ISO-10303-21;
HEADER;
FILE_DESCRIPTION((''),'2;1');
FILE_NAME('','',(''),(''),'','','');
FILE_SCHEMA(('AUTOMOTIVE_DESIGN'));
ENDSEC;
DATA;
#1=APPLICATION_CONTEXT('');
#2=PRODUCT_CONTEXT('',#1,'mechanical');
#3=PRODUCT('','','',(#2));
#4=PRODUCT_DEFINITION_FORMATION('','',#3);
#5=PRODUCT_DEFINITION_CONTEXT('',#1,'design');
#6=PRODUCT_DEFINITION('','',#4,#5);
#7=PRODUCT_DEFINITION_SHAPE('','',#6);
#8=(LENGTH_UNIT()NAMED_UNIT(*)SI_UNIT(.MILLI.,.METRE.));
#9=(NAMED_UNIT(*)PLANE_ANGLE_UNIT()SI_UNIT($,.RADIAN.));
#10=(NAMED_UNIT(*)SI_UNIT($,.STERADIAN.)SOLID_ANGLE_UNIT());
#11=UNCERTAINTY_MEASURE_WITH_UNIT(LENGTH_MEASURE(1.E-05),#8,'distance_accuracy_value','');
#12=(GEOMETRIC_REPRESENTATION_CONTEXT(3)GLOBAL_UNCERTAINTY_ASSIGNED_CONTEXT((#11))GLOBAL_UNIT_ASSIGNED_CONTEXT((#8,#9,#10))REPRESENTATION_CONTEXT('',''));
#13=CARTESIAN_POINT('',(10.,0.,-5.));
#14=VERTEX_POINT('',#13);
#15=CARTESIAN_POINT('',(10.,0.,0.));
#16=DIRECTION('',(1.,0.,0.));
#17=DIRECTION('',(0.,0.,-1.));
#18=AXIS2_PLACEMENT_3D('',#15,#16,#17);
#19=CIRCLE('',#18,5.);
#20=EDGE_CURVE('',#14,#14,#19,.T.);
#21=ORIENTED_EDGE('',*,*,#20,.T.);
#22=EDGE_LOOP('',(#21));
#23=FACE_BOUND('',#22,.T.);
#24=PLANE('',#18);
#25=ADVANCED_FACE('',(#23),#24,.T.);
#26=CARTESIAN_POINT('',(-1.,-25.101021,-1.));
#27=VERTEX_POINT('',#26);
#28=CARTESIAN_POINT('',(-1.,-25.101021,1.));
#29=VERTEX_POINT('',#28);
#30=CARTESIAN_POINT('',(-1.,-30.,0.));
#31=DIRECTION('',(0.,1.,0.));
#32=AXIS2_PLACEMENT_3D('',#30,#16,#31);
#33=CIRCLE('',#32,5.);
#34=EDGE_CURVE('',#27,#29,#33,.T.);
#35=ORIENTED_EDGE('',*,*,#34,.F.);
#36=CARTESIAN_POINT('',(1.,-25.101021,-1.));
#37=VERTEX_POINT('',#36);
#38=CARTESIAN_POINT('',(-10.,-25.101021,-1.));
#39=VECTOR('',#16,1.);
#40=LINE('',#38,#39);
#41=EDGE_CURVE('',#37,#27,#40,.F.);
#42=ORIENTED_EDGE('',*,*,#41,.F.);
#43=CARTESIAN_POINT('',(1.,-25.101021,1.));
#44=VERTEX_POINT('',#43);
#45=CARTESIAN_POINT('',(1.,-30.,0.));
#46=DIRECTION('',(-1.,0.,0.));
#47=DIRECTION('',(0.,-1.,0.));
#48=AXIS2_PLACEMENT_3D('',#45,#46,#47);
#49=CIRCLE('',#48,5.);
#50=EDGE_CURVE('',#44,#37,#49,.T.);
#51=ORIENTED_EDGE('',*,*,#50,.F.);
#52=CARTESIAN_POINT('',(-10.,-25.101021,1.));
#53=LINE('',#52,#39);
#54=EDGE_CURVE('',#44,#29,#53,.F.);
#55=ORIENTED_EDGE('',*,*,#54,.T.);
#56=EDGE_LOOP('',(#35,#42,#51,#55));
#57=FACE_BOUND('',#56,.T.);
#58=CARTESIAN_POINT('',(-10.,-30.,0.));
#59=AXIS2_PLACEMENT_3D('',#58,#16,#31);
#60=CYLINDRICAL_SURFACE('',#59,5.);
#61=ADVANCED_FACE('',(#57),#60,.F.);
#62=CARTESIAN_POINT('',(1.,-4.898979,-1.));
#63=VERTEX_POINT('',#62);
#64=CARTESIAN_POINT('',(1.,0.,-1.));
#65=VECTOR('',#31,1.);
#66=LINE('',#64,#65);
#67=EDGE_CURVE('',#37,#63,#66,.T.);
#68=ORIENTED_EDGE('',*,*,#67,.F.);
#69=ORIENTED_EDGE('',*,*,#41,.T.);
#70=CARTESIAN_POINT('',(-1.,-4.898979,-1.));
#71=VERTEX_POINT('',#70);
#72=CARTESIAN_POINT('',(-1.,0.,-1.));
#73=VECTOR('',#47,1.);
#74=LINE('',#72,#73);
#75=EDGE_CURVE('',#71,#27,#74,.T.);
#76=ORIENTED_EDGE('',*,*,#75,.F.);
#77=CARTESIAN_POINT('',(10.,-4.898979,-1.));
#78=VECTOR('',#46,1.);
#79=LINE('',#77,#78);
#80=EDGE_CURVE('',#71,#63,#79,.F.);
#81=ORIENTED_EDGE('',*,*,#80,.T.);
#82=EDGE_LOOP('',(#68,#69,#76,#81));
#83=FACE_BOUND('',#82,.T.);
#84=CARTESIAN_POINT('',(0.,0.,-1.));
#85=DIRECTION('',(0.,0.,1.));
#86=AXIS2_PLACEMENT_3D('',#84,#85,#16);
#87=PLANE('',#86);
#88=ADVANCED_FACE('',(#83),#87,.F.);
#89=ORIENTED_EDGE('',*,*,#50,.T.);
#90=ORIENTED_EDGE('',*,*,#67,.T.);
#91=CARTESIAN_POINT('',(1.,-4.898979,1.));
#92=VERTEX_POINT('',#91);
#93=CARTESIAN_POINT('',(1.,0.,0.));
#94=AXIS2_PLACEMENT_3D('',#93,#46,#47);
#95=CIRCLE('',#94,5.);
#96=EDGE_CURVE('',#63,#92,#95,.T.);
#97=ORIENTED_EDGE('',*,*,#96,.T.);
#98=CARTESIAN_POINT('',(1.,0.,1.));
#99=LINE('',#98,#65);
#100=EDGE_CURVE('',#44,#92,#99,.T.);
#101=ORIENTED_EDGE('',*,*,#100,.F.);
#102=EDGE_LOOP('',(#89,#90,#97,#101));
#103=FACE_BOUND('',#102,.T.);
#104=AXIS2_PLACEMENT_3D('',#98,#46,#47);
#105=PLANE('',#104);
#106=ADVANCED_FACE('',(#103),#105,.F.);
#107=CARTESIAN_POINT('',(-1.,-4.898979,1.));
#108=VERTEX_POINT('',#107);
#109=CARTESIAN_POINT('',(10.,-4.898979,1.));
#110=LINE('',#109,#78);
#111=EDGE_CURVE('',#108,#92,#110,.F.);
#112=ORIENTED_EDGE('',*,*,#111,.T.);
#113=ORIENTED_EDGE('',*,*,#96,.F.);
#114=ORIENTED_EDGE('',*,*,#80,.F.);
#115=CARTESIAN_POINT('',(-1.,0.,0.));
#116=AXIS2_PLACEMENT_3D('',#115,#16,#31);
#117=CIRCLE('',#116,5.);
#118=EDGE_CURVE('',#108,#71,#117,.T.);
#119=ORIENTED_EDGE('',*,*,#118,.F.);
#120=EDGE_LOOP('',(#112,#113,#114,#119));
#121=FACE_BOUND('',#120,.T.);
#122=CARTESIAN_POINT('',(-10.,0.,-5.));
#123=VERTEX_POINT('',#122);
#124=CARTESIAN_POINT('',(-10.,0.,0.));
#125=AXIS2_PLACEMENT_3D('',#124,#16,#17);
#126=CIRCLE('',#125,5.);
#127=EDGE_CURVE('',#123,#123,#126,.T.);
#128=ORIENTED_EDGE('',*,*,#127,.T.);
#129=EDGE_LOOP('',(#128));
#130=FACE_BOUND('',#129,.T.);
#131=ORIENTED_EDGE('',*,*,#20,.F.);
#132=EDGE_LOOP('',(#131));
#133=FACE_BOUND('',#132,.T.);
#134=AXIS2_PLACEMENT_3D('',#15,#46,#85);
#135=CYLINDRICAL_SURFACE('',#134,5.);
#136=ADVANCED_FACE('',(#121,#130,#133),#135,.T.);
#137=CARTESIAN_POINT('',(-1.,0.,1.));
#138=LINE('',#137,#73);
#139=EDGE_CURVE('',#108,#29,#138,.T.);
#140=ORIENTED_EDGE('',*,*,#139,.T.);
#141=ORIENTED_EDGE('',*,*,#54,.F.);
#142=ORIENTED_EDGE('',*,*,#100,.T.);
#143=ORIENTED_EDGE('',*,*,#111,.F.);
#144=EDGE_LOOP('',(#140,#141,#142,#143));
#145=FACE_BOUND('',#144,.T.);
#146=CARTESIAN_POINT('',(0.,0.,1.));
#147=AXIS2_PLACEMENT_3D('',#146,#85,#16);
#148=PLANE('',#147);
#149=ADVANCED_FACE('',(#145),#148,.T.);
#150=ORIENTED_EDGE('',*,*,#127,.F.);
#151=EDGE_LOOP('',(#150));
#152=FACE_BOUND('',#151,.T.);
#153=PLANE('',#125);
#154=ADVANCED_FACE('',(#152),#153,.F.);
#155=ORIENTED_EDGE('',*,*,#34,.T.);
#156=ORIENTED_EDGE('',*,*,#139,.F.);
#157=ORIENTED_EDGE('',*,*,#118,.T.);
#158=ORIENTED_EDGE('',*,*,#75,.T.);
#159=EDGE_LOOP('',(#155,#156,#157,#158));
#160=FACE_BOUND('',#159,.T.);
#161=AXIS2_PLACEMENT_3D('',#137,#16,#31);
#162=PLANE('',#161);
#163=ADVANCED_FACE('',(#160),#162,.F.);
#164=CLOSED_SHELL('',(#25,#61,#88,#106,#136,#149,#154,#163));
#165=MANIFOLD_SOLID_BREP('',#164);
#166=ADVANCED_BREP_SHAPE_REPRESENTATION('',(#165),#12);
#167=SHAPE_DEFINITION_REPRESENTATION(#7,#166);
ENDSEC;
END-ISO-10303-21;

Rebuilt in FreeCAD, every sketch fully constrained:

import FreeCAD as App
import Part
import Sketcher
from FreeCAD import Vector
Q = App.Units.Quantity

doc = App.newDocument("Part")
params = doc.addObject("Spreadsheet::Sheet", "Params")
for row, (alias, value) in enumerate([
    ("sketch1_diameter", "10 mm"),
    ("pad1_length", "20 mm"),
    ("sketch2_width", "2 mm"),
    ("sketch2_height", "30 mm"),
    ("pad2_length", "2 mm"),
    ("sketch3_diameter", "10 mm"),
], start=1):
    params.set(f"A{row}", alias)
    params.set(f"B{row}", "=" + value)
    params.setAlias(f"B{row}", alias)

body = doc.addObject("PartDesign::Body", "Body")

# Sketch on YZ plane
sketch1 = body.newObject("Sketcher::SketchObject", "Sketch")
sketch1.AttachmentSupport = (doc.getObject("YZ_Plane"), [""])
sketch1.MapMode = "FlatFace"
sketch1.addGeometry(Part.Circle(Vector(0, 0, 0), Vector(0, 0, 1), 5), False)
sketch1.addConstraint([
    Sketcher.Constraint("Coincident", 0, 3, -1, 1),
    Sketcher.Constraint("Diameter", 0, Q("10 mm")),
])
sketch1.setExpression("Constraints[1]", "Params.sketch1_diameter")
pad1 = body.newObject("PartDesign::Pad", "Pad")
pad1.Profile = sketch1
pad1.setExpression("Length", "Params.pad1_length")
pad1.Midplane = True

# Sketch on XY plane
sketch2 = body.newObject("Sketcher::SketchObject", "Sketch001")
sketch2.AttachmentSupport = (doc.getObject("XY_Plane"), [""])
sketch2.MapMode = "FlatFace"
sketch2.addGeometry([
    Part.LineSegment(Vector(-1, 0, 0), Vector(-1, -30, 0)),
    Part.LineSegment(Vector(-1, -30, 0), Vector(1, -30, 0)),
    Part.LineSegment(Vector(1, -30, 0), Vector(1, 0, 0)),
    Part.LineSegment(Vector(1, 0, 0), Vector(-1, 0, 0)),
], False)
sketch2.addConstraint([
    Sketcher.Constraint("Coincident", 0, 2, 1, 1),
    Sketcher.Constraint("Coincident", 1, 2, 2, 1),
    Sketcher.Constraint("Coincident", 2, 2, 3, 1),
    Sketcher.Constraint("Coincident", 3, 2, 0, 1),
    Sketcher.Constraint("Vertical", 0),
    Sketcher.Constraint("Horizontal", 1),
    Sketcher.Constraint("Vertical", 2),
    Sketcher.Constraint("Horizontal", 3),
    Sketcher.Constraint("Symmetric", 2, 2, 3, 2, -1, 1),
    Sketcher.Constraint("DistanceX", 1, 1, 1, 2, Q("2 mm")),
    Sketcher.Constraint("DistanceY", 0, 2, 0, 1, Q("30 mm")),
])
sketch2.setExpression("Constraints[9]", "Params.sketch2_width")
sketch2.setExpression("Constraints[10]", "Params.sketch2_height")
pad2 = body.newObject("PartDesign::Pad", "Pad001")
pad2.Profile = sketch2
pad2.setExpression("Length", "Params.pad2_length")
pad2.Midplane = True

# Sketch on YZ plane
sketch3 = body.newObject("Sketcher::SketchObject", "Sketch002")
sketch3.AttachmentSupport = (doc.getObject("YZ_Plane"), [""])
sketch3.MapMode = "FlatFace"
sketch3.AttachmentOffset = App.Placement(Vector(0, 0, 1), App.Rotation())
sketch3.addGeometry(Part.Circle(Vector(-30, 0, 0), Vector(0, 0, 1), 5), False)
sketch3.addConstraint([
    Sketcher.Constraint("PointOnObject", 0, 3, -1),
    Sketcher.Constraint("Diameter", 0, Q("10 mm")),
    Sketcher.Constraint("DistanceX", 0, 3, -1, 1, Q("30 mm")),
])
sketch3.setExpression("Constraints[1]", "Params.sketch3_diameter")
pocket1 = body.newObject("PartDesign::Pocket", "Pocket")
pocket1.Profile = sketch3
pocket1.Type = "ThroughAll"

doc.recompute()
